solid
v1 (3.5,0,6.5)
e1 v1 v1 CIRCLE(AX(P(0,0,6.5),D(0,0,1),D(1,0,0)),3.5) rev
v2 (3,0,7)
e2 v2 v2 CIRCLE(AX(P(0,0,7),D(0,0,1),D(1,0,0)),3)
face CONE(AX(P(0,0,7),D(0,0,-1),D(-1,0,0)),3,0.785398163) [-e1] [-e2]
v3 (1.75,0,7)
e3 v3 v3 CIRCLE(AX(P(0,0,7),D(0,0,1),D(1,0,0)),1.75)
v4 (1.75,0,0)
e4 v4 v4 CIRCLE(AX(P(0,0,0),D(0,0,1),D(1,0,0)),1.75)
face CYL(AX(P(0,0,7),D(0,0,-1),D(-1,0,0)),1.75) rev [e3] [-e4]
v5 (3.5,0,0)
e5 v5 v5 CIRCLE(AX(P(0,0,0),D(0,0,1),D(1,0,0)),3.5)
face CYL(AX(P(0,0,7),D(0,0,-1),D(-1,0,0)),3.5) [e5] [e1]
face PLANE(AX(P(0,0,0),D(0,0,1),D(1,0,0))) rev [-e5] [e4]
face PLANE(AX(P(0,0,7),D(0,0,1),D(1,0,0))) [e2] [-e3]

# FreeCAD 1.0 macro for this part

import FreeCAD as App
import Part
import Sketcher
from FreeCAD import Vector
Q = App.Units.Quantity


def edges_at(feature, points):
    """Names of the edges that pass closest to the given points."""
    edges = feature.Shape.Edges
    near = lambda p: min(range(len(edges)), key=lambda i: edges[i].distToShape(Part.Vertex(*p))[0])
    return sorted({f"Edge{near(p) + 1}" for p in points})

doc = App.newDocument("Part")
body = doc.addObject("PartDesign::Body", "Body")

# Sketch on XY plane
sketch1 = doc.addObject("Sketcher::SketchObject", "Sketch")
body.addObject(sketch1)
sketch1.AttachmentSupport = (doc.XY_Plane, [""])
sketch1.MapMode = "FlatFace"
sketch1.addGeometry(Part.Circle(Vector(0, 0, 0), Vector(0, 0, 1), 3.5), False)
sketch1.addGeometry(Part.Circle(Vector(0, 0, 0), Vector(0, 0, 1), 1.8), False)
sketch1.addConstraint(Sketcher.Constraint("Coincident", 0, 3, -1, 1))
sketch1.addConstraint(Sketcher.Constraint("Coincident", 1, 3, -1, 1))
sketch1.addConstraint(Sketcher.Constraint("Diameter", 0, Q("7 mm")))
sketch1.addConstraint(Sketcher.Constraint("Diameter", 1, Q("3.5 mm")))
pad1 = doc.addObject("PartDesign::Pad", "Pad")
body.addObject(pad1)
pad1.Profile = sketch1
pad1.Length = 7
doc.recompute()

chamfer = doc.addObject("PartDesign::Chamfer", "Chamfer")
body.addObject(chamfer)
chamfer.Base = (pad1, edges_at(pad1, [(-3.5, 0, 7)]))
chamfer.Size = 0.5

doc.recompute()
